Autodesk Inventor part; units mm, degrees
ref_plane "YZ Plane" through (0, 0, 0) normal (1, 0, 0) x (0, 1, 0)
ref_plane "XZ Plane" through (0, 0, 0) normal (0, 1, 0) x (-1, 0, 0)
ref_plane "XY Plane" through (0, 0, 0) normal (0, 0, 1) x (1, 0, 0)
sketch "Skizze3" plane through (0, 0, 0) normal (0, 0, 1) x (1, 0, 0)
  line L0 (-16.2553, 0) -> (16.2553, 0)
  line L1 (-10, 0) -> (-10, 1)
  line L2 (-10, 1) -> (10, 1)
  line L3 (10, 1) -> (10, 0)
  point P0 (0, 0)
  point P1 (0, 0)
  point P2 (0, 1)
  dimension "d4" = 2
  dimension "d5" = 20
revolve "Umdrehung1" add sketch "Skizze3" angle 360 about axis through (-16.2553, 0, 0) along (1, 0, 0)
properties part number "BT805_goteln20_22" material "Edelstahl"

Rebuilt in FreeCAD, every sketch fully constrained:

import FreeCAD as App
import Part
import Sketcher
from FreeCAD import Vector


def add_polygon(sketch, points):
    """Adds a closed chain of lines whose ends are joined by coincident constraints."""
    first, n = sketch.GeometryCount, len(points)
    for a, b in zip(points, points[1:] + points[:1]):
        sketch.addGeometry(Part.LineSegment(App.Vector(*a, 0), App.Vector(*b, 0)), False)
    for i in range(n):
        sketch.addConstraint(Sketcher.Constraint("Coincident", first + i, 2, first + (i + 1) % n, 1))

doc = App.newDocument("Part")
body = doc.addObject("PartDesign::Body", "Body")

sketch1 = body.newObject("Sketcher::SketchObject", "Sketch")
sketch1.AttachmentSupport = (doc.getObject("XY_Plane"), [""])
sketch1.MapMode = "FlatFace"
add_polygon(sketch1, [(-10, 1), (-10, 0), (10, 0), (10, 1)])
sketch1.addConstraint([
    Sketcher.Constraint("Vertical", 0),
    Sketcher.Constraint("Horizontal", 1),
    Sketcher.Constraint("Vertical", 2),
    Sketcher.Constraint("Horizontal", 3),
    Sketcher.Constraint("Symmetric", 0, 2, 1, 2, -1, 1),
    Sketcher.Constraint("DistanceX", 1, 1, 1, 2, 20.0),
    Sketcher.Constraint("DistanceY", 0, 2, 0, 1, 1.0),
])
revolution = body.newObject("PartDesign::Revolution", "Revolution")
revolution.Profile = sketch1
revolution.ReferenceAxis = (sketch1, ["H_Axis"])
revolution.Angle = 360

doc.recompute()
